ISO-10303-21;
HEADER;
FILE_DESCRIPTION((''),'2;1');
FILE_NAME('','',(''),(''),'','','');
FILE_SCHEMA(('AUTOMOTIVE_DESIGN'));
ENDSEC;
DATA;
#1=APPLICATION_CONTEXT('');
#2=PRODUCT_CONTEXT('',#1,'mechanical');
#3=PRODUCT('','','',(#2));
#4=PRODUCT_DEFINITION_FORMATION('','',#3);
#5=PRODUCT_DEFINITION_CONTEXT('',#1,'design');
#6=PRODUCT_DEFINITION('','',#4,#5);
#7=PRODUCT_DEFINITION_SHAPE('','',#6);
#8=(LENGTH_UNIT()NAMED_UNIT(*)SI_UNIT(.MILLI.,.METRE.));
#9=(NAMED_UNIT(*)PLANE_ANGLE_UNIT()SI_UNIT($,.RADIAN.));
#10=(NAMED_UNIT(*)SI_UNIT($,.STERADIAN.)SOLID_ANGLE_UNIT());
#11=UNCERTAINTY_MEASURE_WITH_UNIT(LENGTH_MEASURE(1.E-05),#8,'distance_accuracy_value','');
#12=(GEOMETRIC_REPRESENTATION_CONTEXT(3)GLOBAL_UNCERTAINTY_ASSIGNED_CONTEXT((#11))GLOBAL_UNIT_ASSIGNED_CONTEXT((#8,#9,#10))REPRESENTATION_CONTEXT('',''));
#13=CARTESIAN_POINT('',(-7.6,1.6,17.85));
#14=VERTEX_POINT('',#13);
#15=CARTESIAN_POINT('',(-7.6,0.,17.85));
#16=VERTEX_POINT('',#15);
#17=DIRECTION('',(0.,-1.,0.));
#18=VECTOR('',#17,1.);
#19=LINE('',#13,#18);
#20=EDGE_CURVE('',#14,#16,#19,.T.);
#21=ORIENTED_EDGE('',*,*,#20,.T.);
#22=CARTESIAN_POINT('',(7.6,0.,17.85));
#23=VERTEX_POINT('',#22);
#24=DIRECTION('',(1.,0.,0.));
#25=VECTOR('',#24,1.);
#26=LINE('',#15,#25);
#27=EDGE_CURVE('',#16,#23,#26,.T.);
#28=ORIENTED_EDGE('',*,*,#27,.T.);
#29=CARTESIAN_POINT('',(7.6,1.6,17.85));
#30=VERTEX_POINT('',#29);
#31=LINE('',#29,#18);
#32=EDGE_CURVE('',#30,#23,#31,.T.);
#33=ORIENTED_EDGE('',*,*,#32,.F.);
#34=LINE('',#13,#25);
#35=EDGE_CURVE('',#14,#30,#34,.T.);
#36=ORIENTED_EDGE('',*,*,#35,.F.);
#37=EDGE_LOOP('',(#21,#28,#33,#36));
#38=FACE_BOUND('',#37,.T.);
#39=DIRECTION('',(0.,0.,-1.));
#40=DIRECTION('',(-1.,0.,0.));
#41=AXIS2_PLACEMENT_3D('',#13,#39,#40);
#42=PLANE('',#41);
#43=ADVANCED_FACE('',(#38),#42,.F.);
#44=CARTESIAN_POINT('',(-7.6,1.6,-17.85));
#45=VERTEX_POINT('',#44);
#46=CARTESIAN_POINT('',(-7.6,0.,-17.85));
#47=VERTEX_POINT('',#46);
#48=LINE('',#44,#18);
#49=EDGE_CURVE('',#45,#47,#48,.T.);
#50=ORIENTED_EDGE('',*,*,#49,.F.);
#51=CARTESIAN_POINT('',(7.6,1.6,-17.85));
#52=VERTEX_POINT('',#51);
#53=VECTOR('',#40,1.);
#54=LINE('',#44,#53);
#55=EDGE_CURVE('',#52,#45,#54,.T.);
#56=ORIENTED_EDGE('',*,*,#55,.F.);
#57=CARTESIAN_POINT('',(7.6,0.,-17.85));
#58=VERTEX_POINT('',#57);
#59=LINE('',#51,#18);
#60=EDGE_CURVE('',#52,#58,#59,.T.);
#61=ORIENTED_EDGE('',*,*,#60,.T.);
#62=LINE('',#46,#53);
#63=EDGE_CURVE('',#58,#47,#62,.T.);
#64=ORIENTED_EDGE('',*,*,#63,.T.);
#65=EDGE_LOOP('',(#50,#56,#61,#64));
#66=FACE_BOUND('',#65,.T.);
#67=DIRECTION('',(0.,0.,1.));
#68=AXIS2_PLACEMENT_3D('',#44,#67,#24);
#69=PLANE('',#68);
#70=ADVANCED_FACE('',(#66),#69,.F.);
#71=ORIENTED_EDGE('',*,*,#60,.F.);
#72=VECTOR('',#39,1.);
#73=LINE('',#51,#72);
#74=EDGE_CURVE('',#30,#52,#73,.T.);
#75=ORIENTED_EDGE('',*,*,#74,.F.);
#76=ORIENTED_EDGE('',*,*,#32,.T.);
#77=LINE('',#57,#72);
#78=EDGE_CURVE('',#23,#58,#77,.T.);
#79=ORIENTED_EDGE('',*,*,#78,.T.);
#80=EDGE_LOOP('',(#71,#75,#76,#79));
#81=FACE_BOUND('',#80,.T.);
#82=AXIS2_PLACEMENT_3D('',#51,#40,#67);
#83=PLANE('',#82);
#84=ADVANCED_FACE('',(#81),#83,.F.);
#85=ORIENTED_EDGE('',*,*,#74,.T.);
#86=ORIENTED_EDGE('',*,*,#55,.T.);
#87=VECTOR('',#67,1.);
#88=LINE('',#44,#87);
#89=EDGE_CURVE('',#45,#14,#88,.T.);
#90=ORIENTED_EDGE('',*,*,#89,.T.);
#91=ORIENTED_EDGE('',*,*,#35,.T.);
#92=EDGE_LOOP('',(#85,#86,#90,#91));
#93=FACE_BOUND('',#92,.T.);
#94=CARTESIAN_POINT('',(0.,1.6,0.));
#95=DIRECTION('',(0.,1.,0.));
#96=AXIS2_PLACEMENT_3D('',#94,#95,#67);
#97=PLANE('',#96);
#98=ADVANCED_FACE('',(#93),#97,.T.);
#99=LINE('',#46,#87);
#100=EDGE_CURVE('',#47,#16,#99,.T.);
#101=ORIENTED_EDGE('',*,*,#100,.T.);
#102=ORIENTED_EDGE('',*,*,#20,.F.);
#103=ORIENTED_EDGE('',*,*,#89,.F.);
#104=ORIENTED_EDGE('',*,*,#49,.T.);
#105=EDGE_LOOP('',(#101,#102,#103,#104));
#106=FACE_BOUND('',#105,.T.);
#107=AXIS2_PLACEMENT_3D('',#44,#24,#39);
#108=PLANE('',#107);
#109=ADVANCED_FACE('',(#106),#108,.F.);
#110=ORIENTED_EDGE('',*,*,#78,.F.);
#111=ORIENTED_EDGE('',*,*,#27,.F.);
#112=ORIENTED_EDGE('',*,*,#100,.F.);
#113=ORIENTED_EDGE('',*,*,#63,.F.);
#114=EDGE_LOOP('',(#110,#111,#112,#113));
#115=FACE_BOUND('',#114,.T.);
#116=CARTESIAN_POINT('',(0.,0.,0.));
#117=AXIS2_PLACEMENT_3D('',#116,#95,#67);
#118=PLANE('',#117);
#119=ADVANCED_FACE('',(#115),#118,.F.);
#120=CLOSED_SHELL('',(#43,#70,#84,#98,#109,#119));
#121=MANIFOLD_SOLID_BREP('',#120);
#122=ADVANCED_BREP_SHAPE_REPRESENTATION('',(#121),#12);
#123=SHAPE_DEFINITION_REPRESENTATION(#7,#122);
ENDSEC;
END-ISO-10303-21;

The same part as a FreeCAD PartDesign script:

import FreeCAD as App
import Part
import Sketcher

doc = App.newDocument("Part")
body = doc.addObject("PartDesign::Body", "Body")

# Sketch on XZ plane
sketch1 = body.newObject("Sketcher::SketchObject", "Sketch")
sketch1.AttachmentSupport = (doc.getObject("XZ_Plane"), [""])
sketch1.MapMode = "FlatFace"
sketch1.addGeometry([
    Part.LineSegment(App.Vector(-8, -18, 0), App.Vector(-8, 18, 0)),
    Part.LineSegment(App.Vector(-8, 18, 0), App.Vector(8, 18, 0)),
    Part.LineSegment(App.Vector(8, 18, 0), App.Vector(8, -18, 0)),
    Part.LineSegment(App.Vector(8, -18, 0), App.Vector(-8, -18, 0)),
], False)
sketch1.addConstraint([
    Sketcher.Constraint("Coincident", 0, 2, 1, 1),
    Sketcher.Constraint("Coincident", 1, 2, 2, 1),
    Sketcher.Constraint("Coincident", 2, 2, 3, 1),
    Sketcher.Constraint("Coincident", 3, 2, 0, 1),
    Sketcher.Constraint("Vertical", 0),
    Sketcher.Constraint("Horizontal", 1),
    Sketcher.Constraint("Vertical", 2),
    Sketcher.Constraint("Horizontal", 3),
    Sketcher.Constraint("Symmetric", 0, 2, 2, 2, -1, 1),
    Sketcher.Constraint("DistanceX", 1, 1, 1, 2, 15.2),
    Sketcher.Constraint("DistanceY", 0, 1, 0, 2, 35.7),
])
pad1 = body.newObject("PartDesign::Pad", "Pad")
pad1.Profile = sketch1
pad1.Length = 1.6
pad1.Reversed = True

doc.recompute()
